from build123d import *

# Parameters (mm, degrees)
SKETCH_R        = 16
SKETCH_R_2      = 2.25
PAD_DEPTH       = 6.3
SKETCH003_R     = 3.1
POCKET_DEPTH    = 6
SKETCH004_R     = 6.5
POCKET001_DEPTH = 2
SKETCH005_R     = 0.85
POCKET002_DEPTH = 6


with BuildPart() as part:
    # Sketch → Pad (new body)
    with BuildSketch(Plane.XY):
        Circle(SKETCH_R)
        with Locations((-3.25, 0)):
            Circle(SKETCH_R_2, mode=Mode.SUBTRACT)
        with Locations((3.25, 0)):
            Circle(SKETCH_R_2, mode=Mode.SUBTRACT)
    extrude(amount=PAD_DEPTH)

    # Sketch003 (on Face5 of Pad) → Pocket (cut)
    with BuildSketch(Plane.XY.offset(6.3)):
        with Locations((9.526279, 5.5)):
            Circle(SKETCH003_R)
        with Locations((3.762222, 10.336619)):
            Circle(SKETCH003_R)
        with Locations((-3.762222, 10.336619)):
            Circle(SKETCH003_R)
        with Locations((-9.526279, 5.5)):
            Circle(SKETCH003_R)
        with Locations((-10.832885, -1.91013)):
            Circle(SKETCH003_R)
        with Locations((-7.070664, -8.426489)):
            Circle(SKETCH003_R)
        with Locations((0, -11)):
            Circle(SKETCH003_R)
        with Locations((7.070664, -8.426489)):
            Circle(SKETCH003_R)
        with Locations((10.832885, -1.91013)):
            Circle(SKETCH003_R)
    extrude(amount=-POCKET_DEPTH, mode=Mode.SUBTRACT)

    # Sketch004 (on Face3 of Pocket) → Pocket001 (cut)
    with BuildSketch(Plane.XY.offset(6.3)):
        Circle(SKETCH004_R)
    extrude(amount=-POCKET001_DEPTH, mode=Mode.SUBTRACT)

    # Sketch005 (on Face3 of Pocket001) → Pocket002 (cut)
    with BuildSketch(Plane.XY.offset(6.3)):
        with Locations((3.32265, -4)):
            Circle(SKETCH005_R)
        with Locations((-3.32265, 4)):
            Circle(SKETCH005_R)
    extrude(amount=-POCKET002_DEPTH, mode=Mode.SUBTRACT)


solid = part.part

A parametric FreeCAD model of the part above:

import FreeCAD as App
import Part
import Sketcher

V = App.Vector
Q = App.Units.Quantity

doc = App.newDocument("Part")
params = doc.addObject("Spreadsheet::Sheet", "Params")
for row, (alias, value) in enumerate([
    ("sketch1_diameter", "32 mm"),
    ("sketch1_diameter2", "4.5 mm"),
    ("pad1_length", "6.3 mm"),
    ("sketch2_diameter", "6.2 mm"),
    ("pocket1_length", "6 mm"),
    ("sketch3_diameter", "13 mm"),
    ("pocket2_length", "2 mm"),
    ("sketch4_diameter", "1.7 mm"),
    ("pocket3_length", "6 mm"),
], start=1):
    params.set(f"A{row}", alias)
    params.set(f"B{row}", "=" + value)
    params.setAlias(f"B{row}", alias)

body = doc.addObject("PartDesign::Body", "Body")

# Sketch on XY plane
sketch1 = body.newObject("Sketcher::SketchObject", "Sketch")
sketch1.AttachmentSupport = (doc.getObject("XY_Plane"), [""])
sketch1.MapMode = "FlatFace"
sketch1.addGeometry(Part.Circle(V(0, 0, 0), V(0, 0, 1), 16), False)
sketch1.addGeometry(Part.Circle(V(-3.2, 0, 0), V(0, 0, 1), 2.2), False)
sketch1.addGeometry(Part.Circle(V(3.2, 0, 0), V(0, 0, 1), 2.2), False)
sketch1.addConstraint(Sketcher.Constraint("Coincident", 0, 3, -1, 1))
sketch1.addConstraint(Sketcher.Constraint("Equal", 1, 2))
sketch1.addConstraint(Sketcher.Constraint("Symmetric", 1, 3, 2, 3, -1, 1))
sketch1.addConstraint(Sketcher.Constraint("PointOnObject", 1, 3, -1))
sketch1.addConstraint(Sketcher.Constraint("Diameter", 0, Q("32 mm")))
sketch1.addConstraint(Sketcher.Constraint("Diameter", 1, Q("4.5 mm")))
sketch1.addConstraint(Sketcher.Constraint("DistanceX", 1, 3, 2, 3, Q("6.5 mm")))
sketch1.setExpression("Constraints[4]", "Params.sketch1_diameter")
sketch1.setExpression("Constraints[5]", "Params.sketch1_diameter2")
pad1 = body.newObject("PartDesign::Pad", "Pad")
pad1.Profile = sketch1
pad1.setExpression("Length", "Params.pad1_length")

# Sketch on XY plane
sketch2 = body.newObject("Sketcher::SketchObject", "Sketch001")
sketch2.AttachmentSupport = (doc.getObject("XY_Plane"), [""])
sketch2.MapMode = "FlatFace"
sketch2.AttachmentOffset = App.Placement(V(0, 0, 6.3), App.Rotation())
sketch2.addGeometry(Part.Circle(V(9.5, 5.5, 0), V(0, 0, 1), 3.1), False)
sketch2.addGeometry(Part.Circle(V(3.8, 10.3, 0), V(0, 0, 1), 3.1), False)
sketch2.addGeometry(Part.Circle(V(-3.8, 10.3, 0), V(0, 0, 1), 3.1), False)
sketch2.addGeometry(Part.Circle(V(-9.5, 5.5, 0), V(0, 0, 1), 3.1), False)
sketch2.addGeometry(Part.Circle(V(-10.8, -1.9, 0), V(0, 0, 1), 3.1), False)
sketch2.addGeometry(Part.Circle(V(-7.1, -8.4, 0), V(0, 0, 1), 3.1), False)
sketch2.addGeometry(Part.Circle(V(0, -11, 0), V(0, 0, 1), 3.1), False)
sketch2.addGeometry(Part.Circle(V(7.1, -8.4, 0), V(0, 0, 1), 3.1), False)
sketch2.addGeometry(Part.Circle(V(10.8, -1.9, 0), V(0, 0, 1), 3.1), False)
sketch2.addConstraint(Sketcher.Constraint("Equal", 0, 1))
sketch2.addConstraint(Sketcher.Constraint("Equal", 1, 2))
sketch2.addConstraint(Sketcher.Constraint("Equal", 2, 3))
sketch2.addConstraint(Sketcher.Constraint("Equal", 3, 4))
sketch2.addConstraint(Sketcher.Constraint("Equal", 4, 5))
sketch2.addConstraint(Sketcher.Constraint("Equal", 5, 6))
sketch2.addConstraint(Sketcher.Constraint("Equal", 6, 7))
sketch2.addConstraint(Sketcher.Constraint("Equal", 7, 8))
sketch2.addConstraint(Sketcher.Constraint("Symmetric", 1, 3, 2, 3, -2))
sketch2.addConstraint(Sketcher.Constraint("Symmetric", 0, 3, 3, 3, -2))
sketch2.addConstraint(Sketcher.Constraint("Symmetric", 5, 3, 7, 3, -2))
sketch2.addConstraint(Sketcher.Constraint("Symmetric", 4, 3, 8, 3, -2))
sketch2.addConstraint(Sketcher.Constraint("PointOnObject", 6, 3, -2))
sketch2.addConstraint(Sketcher.Constraint("Diameter", 0, Q("6.2 mm")))
sketch2.addConstraint(Sketcher.Constraint("DistanceY", 6, 3, -1, 1, Q("11 mm")))
sketch2.addConstraint(Sketcher.Constraint("DistanceY", -1, 1, 0, 3, Q("5.5 mm")))
sketch2.addConstraint(Sketcher.Constraint("DistanceX", 2, 3, 0, 3, Q("13.288501 mm")))
sketch2.addConstraint(Sketcher.Constraint("DistanceX", -1, 1, 0, 3, Q("9.526279 mm")))
sketch2.addConstraint(Sketcher.Constraint("DistanceY", -1, 1, 1, 3, Q("10.336619 mm")))
sketch2.addConstraint(Sketcher.Constraint("DistanceY", 4, 3, -1, 1, Q("1.91013 mm")))
sketch2.addConstraint(Sketcher.Constraint("DistanceY", 5, 3, -1, 1, Q("8.426489 mm")))
sketch2.addConstraint(Sketcher.Constraint("DistanceX", 4, 3, 5, 3, Q("3.762221 mm")))
sketch2.addConstraint(Sketcher.Constraint("DistanceX", 5, 3, 2, 3, Q("3.308442 mm")))
sketch2.setExpression("Constraints[13]", "Params.sketch2_diameter")
pocket1 = body.newObject("PartDesign::Pocket", "Pocket")
pocket1.Profile = sketch2
pocket1.setExpression("Length", "Params.pocket1_length")

# Sketch on XY plane
sketch3 = body.newObject("Sketcher::SketchObject", "Sketch002")
sketch3.AttachmentSupport = (doc.getObject("XY_Plane"), [""])
sketch3.MapMode = "FlatFace"
sketch3.AttachmentOffset = App.Placement(V(0, 0, 6.3), App.Rotation())
sketch3.addGeometry(Part.Circle(V(0, 0, 0), V(0, 0, 1), 6), False)
sketch3.addConstraint(Sketcher.Constraint("Coincident", 0, 3, -1, 1))
sketch3.addConstraint(Sketcher.Constraint("Diameter", 0, Q("13 mm")))
sketch3.setExpression("Constraints[1]", "Params.sketch3_diameter")
pocket2 = body.newObject("PartDesign::Pocket", "Pocket001")
pocket2.Profile = sketch3
pocket2.setExpression("Length", "Params.pocket2_length")

# Sketch on XY plane
sketch4 = body.newObject("Sketcher::SketchObject", "Sketch003")
sketch4.AttachmentSupport = (doc.getObject("XY_Plane"), [""])
sketch4.MapMode = "FlatFace"
sketch4.AttachmentOffset = App.Placement(V(0, 0, 6.3), App.Rotation())
sketch4.addGeometry(Part.Circle(V(3.3, -4, 0), V(0, 0, 1), 0.8), False)
sketch4.addGeometry(Part.Circle(V(-3.3, 4, 0), V(0, 0, 1), 0.8), False)
sketch4.addConstraint(Sketcher.Constraint("Equal", 0, 1))
sketch4.addConstraint(Sketcher.Constraint("Symmetric", 0, 3, 1, 3, -1, 1))
sketch4.addConstraint(Sketcher.Constraint("Diameter", 0, Q("1.7 mm")))
sketch4.addConstraint(Sketcher.Constraint("DistanceY", 0, 3, -1, 1, Q("4 mm")))
sketch4.addConstraint(Sketcher.Constraint("DistanceX", 1, 3, 0, 3, Q("6.6453 mm")))
sketch4.setExpression("Constraints[2]", "Params.sketch4_diameter")
pocket3 = body.newObject("PartDesign::Pocket", "Pocket002")
pocket3.Profile = sketch4
pocket3.setExpression("Length", "Params.pocket3_length")

doc.recompute()
